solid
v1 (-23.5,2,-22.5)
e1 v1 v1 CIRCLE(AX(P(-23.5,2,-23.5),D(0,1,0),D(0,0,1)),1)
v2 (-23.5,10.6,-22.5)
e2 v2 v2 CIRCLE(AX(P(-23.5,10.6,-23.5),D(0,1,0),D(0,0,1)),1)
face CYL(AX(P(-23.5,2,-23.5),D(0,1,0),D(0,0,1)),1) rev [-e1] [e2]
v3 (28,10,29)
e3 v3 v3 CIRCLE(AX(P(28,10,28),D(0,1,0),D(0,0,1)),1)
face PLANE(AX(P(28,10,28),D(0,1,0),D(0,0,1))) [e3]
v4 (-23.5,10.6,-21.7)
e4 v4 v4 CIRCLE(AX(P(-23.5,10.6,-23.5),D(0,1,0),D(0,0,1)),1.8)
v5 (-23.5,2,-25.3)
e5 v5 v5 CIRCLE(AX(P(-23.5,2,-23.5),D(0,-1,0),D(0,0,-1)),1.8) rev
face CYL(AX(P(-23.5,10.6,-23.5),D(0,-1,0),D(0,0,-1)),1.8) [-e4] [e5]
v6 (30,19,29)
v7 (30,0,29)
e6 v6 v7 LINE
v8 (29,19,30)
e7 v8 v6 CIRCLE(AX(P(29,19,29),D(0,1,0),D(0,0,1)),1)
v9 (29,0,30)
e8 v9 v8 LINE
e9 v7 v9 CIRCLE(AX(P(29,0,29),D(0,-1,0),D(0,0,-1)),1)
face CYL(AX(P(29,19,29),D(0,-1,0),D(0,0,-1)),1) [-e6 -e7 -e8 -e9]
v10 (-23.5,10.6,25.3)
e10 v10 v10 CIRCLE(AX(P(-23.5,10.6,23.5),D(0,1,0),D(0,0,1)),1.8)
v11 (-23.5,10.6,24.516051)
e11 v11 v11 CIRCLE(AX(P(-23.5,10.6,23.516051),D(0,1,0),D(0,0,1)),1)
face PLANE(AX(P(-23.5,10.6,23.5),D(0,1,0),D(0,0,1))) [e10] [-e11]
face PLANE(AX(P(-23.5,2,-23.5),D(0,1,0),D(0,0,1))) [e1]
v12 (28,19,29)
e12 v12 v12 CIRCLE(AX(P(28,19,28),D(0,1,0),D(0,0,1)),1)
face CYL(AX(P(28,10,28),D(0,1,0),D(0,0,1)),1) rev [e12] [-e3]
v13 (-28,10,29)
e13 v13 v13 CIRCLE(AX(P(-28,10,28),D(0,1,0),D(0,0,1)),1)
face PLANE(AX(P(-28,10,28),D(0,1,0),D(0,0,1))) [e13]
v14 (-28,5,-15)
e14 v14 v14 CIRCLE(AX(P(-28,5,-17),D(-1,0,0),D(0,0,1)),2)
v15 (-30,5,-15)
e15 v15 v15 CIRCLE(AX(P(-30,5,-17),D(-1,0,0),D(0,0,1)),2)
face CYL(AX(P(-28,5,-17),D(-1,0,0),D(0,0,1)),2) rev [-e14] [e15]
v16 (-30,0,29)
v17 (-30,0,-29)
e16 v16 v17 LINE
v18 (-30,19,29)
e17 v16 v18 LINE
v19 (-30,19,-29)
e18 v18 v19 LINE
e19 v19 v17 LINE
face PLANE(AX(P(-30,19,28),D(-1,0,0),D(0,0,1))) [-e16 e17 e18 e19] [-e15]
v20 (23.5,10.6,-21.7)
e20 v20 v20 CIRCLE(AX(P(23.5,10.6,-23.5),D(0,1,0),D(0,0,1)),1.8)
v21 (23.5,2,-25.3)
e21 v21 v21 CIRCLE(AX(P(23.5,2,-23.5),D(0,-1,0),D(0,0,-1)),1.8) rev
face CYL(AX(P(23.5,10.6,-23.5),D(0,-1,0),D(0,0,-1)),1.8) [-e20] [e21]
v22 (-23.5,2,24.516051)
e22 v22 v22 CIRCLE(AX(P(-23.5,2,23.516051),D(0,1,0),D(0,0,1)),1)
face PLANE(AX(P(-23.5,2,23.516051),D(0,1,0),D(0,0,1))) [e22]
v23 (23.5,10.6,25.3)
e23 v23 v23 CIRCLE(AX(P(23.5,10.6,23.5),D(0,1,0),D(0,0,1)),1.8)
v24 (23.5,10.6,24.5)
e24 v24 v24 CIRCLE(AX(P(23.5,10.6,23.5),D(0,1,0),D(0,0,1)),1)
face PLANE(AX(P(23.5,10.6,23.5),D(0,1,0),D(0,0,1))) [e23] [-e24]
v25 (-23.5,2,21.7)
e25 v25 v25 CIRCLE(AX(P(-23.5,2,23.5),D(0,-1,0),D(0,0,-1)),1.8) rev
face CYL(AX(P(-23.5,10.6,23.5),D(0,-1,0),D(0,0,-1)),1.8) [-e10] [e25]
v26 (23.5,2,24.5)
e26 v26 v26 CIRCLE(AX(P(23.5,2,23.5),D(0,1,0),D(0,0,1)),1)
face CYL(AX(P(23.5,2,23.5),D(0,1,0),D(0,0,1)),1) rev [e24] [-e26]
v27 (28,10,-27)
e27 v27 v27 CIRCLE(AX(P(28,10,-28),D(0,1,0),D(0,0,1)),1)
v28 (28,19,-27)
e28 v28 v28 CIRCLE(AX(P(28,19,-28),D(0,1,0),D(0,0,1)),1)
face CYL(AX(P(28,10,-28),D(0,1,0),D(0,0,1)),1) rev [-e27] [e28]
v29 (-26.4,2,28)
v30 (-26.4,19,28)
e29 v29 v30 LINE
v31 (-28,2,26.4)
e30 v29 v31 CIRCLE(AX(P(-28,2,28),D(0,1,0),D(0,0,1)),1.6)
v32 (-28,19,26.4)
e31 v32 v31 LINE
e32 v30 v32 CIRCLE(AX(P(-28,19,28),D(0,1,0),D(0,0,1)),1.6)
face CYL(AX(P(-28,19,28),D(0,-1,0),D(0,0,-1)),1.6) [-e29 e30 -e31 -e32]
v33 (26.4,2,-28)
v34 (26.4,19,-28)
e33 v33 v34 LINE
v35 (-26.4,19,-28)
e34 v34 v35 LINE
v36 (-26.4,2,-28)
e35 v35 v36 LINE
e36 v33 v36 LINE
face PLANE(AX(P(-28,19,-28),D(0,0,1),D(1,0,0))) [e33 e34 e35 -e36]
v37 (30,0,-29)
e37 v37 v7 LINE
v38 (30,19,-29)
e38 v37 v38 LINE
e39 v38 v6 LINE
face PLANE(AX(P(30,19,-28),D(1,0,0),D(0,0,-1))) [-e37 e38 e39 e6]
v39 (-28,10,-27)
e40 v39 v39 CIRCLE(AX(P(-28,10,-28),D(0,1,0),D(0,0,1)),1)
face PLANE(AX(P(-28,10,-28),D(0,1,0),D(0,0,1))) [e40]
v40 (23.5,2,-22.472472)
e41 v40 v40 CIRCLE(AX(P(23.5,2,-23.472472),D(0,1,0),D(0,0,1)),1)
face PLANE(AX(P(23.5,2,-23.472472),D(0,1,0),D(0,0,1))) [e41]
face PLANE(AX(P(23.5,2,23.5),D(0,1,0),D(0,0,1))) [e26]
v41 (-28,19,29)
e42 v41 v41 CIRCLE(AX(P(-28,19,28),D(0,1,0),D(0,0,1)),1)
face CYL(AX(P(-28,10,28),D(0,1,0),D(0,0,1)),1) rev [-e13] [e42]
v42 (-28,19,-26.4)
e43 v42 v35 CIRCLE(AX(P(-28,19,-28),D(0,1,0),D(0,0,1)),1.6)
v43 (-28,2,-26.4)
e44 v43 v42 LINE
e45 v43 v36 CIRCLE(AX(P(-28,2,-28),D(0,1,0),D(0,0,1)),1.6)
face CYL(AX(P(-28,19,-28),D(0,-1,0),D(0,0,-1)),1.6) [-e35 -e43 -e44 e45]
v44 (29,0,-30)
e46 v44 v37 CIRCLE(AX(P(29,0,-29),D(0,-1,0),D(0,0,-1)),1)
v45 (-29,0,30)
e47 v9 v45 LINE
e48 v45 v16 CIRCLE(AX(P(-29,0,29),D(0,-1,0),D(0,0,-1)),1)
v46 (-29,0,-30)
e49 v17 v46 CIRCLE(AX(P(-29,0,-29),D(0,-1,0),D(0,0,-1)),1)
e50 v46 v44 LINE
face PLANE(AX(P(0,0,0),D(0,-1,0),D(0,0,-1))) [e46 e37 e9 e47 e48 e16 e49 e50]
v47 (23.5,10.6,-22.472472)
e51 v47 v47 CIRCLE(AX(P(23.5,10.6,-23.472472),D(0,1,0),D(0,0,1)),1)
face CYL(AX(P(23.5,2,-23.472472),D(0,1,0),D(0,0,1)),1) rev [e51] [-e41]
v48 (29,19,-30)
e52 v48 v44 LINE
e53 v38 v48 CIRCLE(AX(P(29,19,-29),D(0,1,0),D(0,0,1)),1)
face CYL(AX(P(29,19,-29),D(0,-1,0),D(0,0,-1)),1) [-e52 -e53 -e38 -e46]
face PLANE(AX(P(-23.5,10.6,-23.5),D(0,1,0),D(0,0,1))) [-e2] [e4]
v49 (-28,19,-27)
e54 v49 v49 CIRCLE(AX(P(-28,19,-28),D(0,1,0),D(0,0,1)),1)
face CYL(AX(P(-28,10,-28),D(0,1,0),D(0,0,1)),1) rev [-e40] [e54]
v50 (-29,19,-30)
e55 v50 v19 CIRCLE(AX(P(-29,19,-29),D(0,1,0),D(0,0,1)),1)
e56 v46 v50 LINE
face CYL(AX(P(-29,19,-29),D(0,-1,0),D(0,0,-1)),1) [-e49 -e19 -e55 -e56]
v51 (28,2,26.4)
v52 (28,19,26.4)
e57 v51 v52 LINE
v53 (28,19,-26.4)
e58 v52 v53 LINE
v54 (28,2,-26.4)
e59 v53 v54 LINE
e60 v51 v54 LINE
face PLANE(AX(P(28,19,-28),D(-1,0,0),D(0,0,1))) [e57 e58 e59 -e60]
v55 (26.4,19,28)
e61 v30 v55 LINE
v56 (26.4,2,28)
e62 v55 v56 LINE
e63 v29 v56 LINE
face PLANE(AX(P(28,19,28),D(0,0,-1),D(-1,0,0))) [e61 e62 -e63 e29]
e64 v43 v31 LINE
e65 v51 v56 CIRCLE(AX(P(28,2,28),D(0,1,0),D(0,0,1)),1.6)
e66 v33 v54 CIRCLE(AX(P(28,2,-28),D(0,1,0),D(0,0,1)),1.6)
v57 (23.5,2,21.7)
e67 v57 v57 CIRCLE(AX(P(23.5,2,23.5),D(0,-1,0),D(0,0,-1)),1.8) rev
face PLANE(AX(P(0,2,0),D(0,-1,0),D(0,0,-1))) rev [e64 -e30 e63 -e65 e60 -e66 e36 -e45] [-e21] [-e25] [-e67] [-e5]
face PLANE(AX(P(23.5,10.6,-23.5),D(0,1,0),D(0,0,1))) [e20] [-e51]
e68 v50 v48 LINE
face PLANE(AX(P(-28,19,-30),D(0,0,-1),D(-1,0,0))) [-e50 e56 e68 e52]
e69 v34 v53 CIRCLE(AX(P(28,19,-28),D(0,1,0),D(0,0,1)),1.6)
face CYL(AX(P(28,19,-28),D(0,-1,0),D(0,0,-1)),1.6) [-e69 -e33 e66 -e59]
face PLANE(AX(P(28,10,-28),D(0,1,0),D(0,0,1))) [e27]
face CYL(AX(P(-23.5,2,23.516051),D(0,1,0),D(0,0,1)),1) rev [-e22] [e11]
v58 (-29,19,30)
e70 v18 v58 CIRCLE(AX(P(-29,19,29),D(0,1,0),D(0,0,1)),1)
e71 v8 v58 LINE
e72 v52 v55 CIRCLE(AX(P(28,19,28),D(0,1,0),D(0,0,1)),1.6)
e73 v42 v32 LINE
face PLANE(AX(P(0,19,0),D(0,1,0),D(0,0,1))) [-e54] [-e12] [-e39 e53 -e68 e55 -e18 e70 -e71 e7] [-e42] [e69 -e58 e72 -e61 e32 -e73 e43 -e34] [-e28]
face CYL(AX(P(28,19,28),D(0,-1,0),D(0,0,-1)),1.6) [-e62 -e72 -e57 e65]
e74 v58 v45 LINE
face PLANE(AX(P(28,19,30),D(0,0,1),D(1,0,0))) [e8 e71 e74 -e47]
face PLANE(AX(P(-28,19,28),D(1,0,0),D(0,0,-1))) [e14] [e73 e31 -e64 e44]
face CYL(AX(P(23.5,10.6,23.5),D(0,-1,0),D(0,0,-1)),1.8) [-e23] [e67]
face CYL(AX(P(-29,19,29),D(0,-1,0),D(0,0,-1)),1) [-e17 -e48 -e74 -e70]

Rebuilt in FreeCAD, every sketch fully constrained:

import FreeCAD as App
import Part
import Sketcher

V = App.Vector
Q = App.Units.Quantity


def edges_at(feature, points):
    """Names of the edges that pass closest to the given points."""
    edges = feature.Shape.Edges
    near = lambda p: min(range(len(edges)), key=lambda i: edges[i].distToShape(Part.Vertex(*p))[0])
    return sorted({f"Edge{near(p) + 1}" for p in points})


def add_polygon(sketch, points):
    """Adds a closed chain of lines whose ends are joined by coincident constraints."""
    first, n = sketch.GeometryCount, len(points)
    for a, b in zip(points, points[1:] + points[:1]):
        sketch.addGeometry(Part.LineSegment(App.Vector(*a, 0), App.Vector(*b, 0)), False)
    for i in range(n):
        sketch.addConstraint(Sketcher.Constraint("Coincident", first + i, 2, first + (i + 1) % n, 1))

doc = App.newDocument("Part")
body = doc.addObject("PartDesign::Body", "Body")

sketch1 = body.newObject("Sketcher::SketchObject", "Sketch")
sketch1.AttachmentSupport = (doc.getObject("XZ_Plane"), [""])
sketch1.MapMode = "FlatFace"
add_polygon(sketch1, [(-28, -28), (-28, 28), (28, 28), (28, -28)])
sketch1.addConstraint([
    Sketcher.Constraint("Vertical", 0),
    Sketcher.Constraint("Horizontal", 1),
    Sketcher.Constraint("Vertical", 2),
    Sketcher.Constraint("Horizontal", 3),
    Sketcher.Constraint("Symmetric", 0, 2, 2, 2, -1, 1),
    Sketcher.Constraint("Equal", 3, 0),
    Sketcher.Constraint("DistanceX", 1, 1, 1, 2, Q("56 mm")),
])
pad1 = body.newObject("PartDesign::Pad", "Pad")
pad1.Profile = sketch1
pad1.Length = 2
pad1.Reversed = True

sketch2 = body.newObject("Sketcher::SketchObject", "Sketch001")
sketch2.AttachmentSupport = (doc.getObject("XZ_Plane"), [""])
sketch2.MapMode = "FlatFace"
sketch2.AttachmentOffset = App.Placement(V(0, 0, -2), App.Rotation())
sketch2.addGeometry([
    Part.Circle(V(-23.5, 23.5, 0), V(0, 0, 1), 1.8),
    Part.Circle(V(-23.5, -23.5, 0), V(0, 0, 1), 1.8),
    Part.Circle(V(23.5, -23.5, 0), V(0, 0, 1), 1.8),
    Part.Circle(V(23.5, 23.5, 0), V(0, 0, 1), 1.8),
], False)
sketch2.addConstraint([
    Sketcher.Constraint("Equal", 0, 1),
    Sketcher.Constraint("Equal", 1, 2),
    Sketcher.Constraint("Equal", 2, 3),
    Sketcher.Constraint("Symmetric", 0, 3, 2, 3, -1, 1),
    Sketcher.Constraint("Symmetric", 1, 3, 3, 3, -1, 1),
    Sketcher.Constraint("Symmetric", 1, 3, 2, 3, -2),
    Sketcher.Constraint("Diameter", 0, Q("3.6 mm")),
    Sketcher.Constraint("DistanceY", 1, 3, 0, 3, Q("47 mm")),
    Sketcher.Constraint("DistanceX", 1, 3, 2, 3, Q("47 mm")),
])
pad2 = body.newObject("PartDesign::Pad", "Pad001")
pad2.Profile = sketch2
pad2.Length = 8.6
pad2.Reversed = True

sketch3 = body.newObject("Sketcher::SketchObject", "Sketch002")
sketch3.AttachmentSupport = (doc.getObject("XZ_Plane"), [""])
sketch3.MapMode = "FlatFace"
sketch3.AttachmentOffset = App.Placement(V(0, 0, -10.6), App.Rotation())
sketch3.addGeometry([
    Part.Circle(V(-23.5, -23.5, 0), V(0, 0, 1), 1),
    Part.Circle(V(23.5, -23.5, 0), V(0, 0, 1), 1),
    Part.Circle(V(23.5, 23.5, 0), V(0, 0, 1), 1),
    Part.Circle(V(-23.5, 23.5, 0), V(0, 0, 1), 1),
], False)
sketch3.addConstraint([
    Sketcher.Constraint("Equal", 0, 1),
    Sketcher.Constraint("Equal", 1, 2),
    Sketcher.Constraint("Equal", 2, 3),
    Sketcher.Constraint("Symmetric", 0, 3, 2, 3, -1, 1),
    Sketcher.Constraint("Vertical", 1, 3, 2, 3),
    Sketcher.Constraint("Vertical", 0, 3, 3, 3),
    Sketcher.Constraint("Diameter", 0, Q("2 mm")),
    Sketcher.Constraint("DistanceX", 0, 3, 1, 3, Q("47 mm")),
    Sketcher.Constraint("DistanceY", 0, 3, 2, 3, Q("47 mm")),
    Sketcher.Constraint("DistanceY", 1, 3, -1, 1, Q("23.472472 mm")),
    Sketcher.Constraint("DistanceY", -1, 1, 3, 3, Q("23.516051 mm")),
])
pocket1 = body.newObject("PartDesign::Pocket", "Pocket")
pocket1.Profile = sketch3
pocket1.Length = 8.6
pocket1.Reversed = True
body2 = doc.addObject("PartDesign::Body", "Body001")

sketch4 = body2.newObject("Sketcher::SketchObject", "Sketch003")
sketch4.AttachmentSupport = (doc.getObject("XZ_Plane001"), [""])
sketch4.MapMode = "FlatFace"
add_polygon(sketch4, [(-28, -28), (-28, -30), (30, -30), (30, -28)])
sketch4.addConstraint([
    Sketcher.Constraint("Vertical", 0),
    Sketcher.Constraint("Horizontal", 1),
    Sketcher.Constraint("Vertical", 2),
    Sketcher.Constraint("Horizontal", 3),
    Sketcher.Constraint("DistanceX", 1, 1, 1, 2, Q("58 mm")),
    Sketcher.Constraint("DistanceY", 0, 2, 0, 1, Q("2 mm")),
    Sketcher.Constraint("DistanceX", 0, 2, -1, 1, Q("28 mm")),
    Sketcher.Constraint("DistanceY", 0, 2, -1, 1, Q("30 mm")),
])
pad3 = body2.newObject("PartDesign::Pad", "Pad002")
pad3.Profile = sketch4
pad3.Length = 19
pad3.Reversed = True
doc.recompute()

boolean = body.newObject("PartDesign::Boolean", "Boolean")
boolean.Type = "Fuse"
boolean.addObjects([body2])

sketch5 = body.newObject("Sketcher::SketchObject", "Sketch004")
sketch5.AttachmentSupport = (doc.getObject("XZ_Plane"), [""])
sketch5.MapMode = "FlatFace"
add_polygon(sketch5, [(28, 30), (28, -28), (30, -28), (30, 30)])
sketch5.addConstraint([
    Sketcher.Constraint("Vertical", 0),
    Sketcher.Constraint("Horizontal", 1),
    Sketcher.Constraint("Vertical", 2),
    Sketcher.Constraint("Horizontal", 3),
    Sketcher.Constraint("DistanceX", 1, 1, 1, 2, Q("2 mm")),
    Sketcher.Constraint("DistanceY", 0, 2, 0, 1, Q("58 mm")),
    Sketcher.Constraint("DistanceX", -1, 1, 0, 2, Q("28 mm")),
    Sketcher.Constraint("DistanceY", 0, 2, -1, 1, Q("28 mm")),
])
pad4 = body.newObject("PartDesign::Pad", "Pad003")
pad4.Profile = sketch5
pad4.Length = 19
pad4.Reversed = True
body3 = doc.addObject("PartDesign::Body", "Body002")

sketch6 = body3.newObject("Sketcher::SketchObject", "Sketch005")
sketch6.AttachmentSupport = (doc.getObject("XZ_Plane002"), [""])
sketch6.MapMode = "FlatFace"
add_polygon(sketch6, [(-30, 30), (-30, 28), (28, 28), (28, 30)])
sketch6.addConstraint([
    Sketcher.Constraint("Vertical", 0),
    Sketcher.Constraint("Horizontal", 1),
    Sketcher.Constraint("Vertical", 2),
    Sketcher.Constraint("Horizontal", 3),
    Sketcher.Constraint("DistanceX", 1, 1, 1, 2, Q("58 mm")),
    Sketcher.Constraint("DistanceY", 0, 2, 0, 1, Q("2 mm")),
    Sketcher.Constraint("DistanceX", 0, 2, -1, 1, Q("30 mm")),
    Sketcher.Constraint("DistanceY", -1, 1, 0, 2, Q("28 mm")),
])
pad5 = body3.newObject("PartDesign::Pad", "Pad004")
pad5.Profile = sketch6
pad5.Length = 19
pad5.Reversed = True
doc.recompute()

boolean2 = body.newObject("PartDesign::Boolean", "Boolean001")
boolean2.Type = "Fuse"
boolean2.addObjects([body3])

sketch7 = body.newObject("Sketcher::SketchObject", "Sketch006")
sketch7.AttachmentSupport = (doc.getObject("XZ_Plane"), [""])
sketch7.MapMode = "FlatFace"
add_polygon(sketch7, [(-30, 28), (-30, -30), (-28, -30), (-28, 28)])
sketch7.addConstraint([
    Sketcher.Constraint("Vertical", 0),
    Sketcher.Constraint("Horizontal", 1),
    Sketcher.Constraint("Vertical", 2),
    Sketcher.Constraint("Horizontal", 3),
    Sketcher.Constraint("DistanceX", 1, 1, 1, 2, Q("2 mm")),
    Sketcher.Constraint("DistanceY", 0, 2, 0, 1, Q("58 mm")),
    Sketcher.Constraint("DistanceX", 0, 2, -1, 1, Q("30 mm")),
    Sketcher.Constraint("DistanceY", 0, 2, -1, 1, Q("30 mm")),
])
pad6 = body.newObject("PartDesign::Pad", "Pad005")
pad6.Profile = sketch7
pad6.Length = 19
pad6.Reversed = True

sketch8 = body.newObject("Sketcher::SketchObject", "Sketch007")
sketch8.AttachmentSupport = (doc.getObject("YZ_Plane"), [""])
sketch8.MapMode = "FlatFace"
sketch8.AttachmentOffset = App.Placement(V(0, 0, -30), App.Rotation())
sketch8.addGeometry(Part.Circle(V(5, -17, 0), V(0, 0, 1), 2), False)
sketch8.addConstraint([
    Sketcher.Constraint("Diameter", 0, Q("4 mm")),
    Sketcher.Constraint("DistanceX", -1, 1, 0, 3, Q("5 mm")),
    Sketcher.Constraint("DistanceY", 0, 3, -1, 1, Q("17 mm")),
])
pocket2 = body.newObject("PartDesign::Pocket", "Pocket001")
pocket2.Profile = sketch8
pocket2.Length = 2
pocket2.Reversed = True

sketch9 = body.newObject("Sketcher::SketchObject", "Sketch008")
sketch9.AttachmentSupport = (doc.getObject("XZ_Plane"), [""])
sketch9.MapMode = "FlatFace"
sketch9.AttachmentOffset = App.Placement(V(0, 0, -2), App.Rotation())
sketch9.addGeometry([
    Part.Circle(V(-28, -28, 0), V(0, 0, 1), 1.6),
    Part.Circle(V(28, -28, 0), V(0, 0, 1), 1.6),
    Part.Circle(V(28, 28, 0), V(0, 0, 1), 1.6),
    Part.Circle(V(-28, 28, 0), V(0, 0, 1), 1.6),
], False)
sketch9.addConstraint([
    Sketcher.Constraint("Equal", 0, 1),
    Sketcher.Constraint("Equal", 1, 2),
    Sketcher.Constraint("Equal", 2, 3),
    Sketcher.Constraint("Symmetric", 0, 3, 2, 3, -1, 1),
    Sketcher.Constraint("Symmetric", 1, 3, 3, 3, -1, 1),
    Sketcher.Constraint("Symmetric", 0, 3, 1, 3, -2),
    Sketcher.Constraint("Diameter", 0, Q("3.2 mm")),
    Sketcher.Constraint("DistanceX", 0, 3, -1, 1, Q("28 mm")),
    Sketcher.Constraint("DistanceY", 0, 3, -1, 1, Q("28 mm")),
])
pad7 = body.newObject("PartDesign::Pad", "Pad006")
pad7.Profile = sketch9
pad7.Length = 17
pad7.Reversed = True

sketch10 = body.newObject("Sketcher::SketchObject", "Sketch009")
sketch10.AttachmentSupport = (doc.getObject("XZ_Plane"), [""])
sketch10.MapMode = "FlatFace"
sketch10.AttachmentOffset = App.Placement(V(0, 0, -19), App.Rotation())
sketch10.addGeometry([
    Part.Circle(V(-28, -28, 0), V(0, 0, 1), 1),
    Part.Circle(V(28, -28, 0), V(0, 0, 1), 1),
    Part.Circle(V(-28, 28, 0), V(0, 0, 1), 1),
    Part.Circle(V(28, 28, 0), V(0, 0, 1), 1),
], False)
sketch10.addConstraint([
    Sketcher.Constraint("Equal", 0, 1),
    Sketcher.Constraint("Equal", 1, 2),
    Sketcher.Constraint("Equal", 2, 3),
    Sketcher.Constraint("Symmetric", 1, 3, 2, 3, -1, 1),
    Sketcher.Constraint("Symmetric", 0, 3, 3, 3, -1, 1),
    Sketcher.Constraint("Symmetric", 0, 3, 1, 3, -2),
    Sketcher.Constraint("Diameter", 0, Q("2 mm")),
    Sketcher.Constraint("DistanceX", 0, 3, -1, 1, Q("28 mm")),
    Sketcher.Constraint("DistanceY", 0, 3, -1, 1, Q("28 mm")),
])
pocket3 = body.newObject("PartDesign::Pocket", "Pocket002")
pocket3.Profile = sketch10
pocket3.Length = 9
pocket3.Reversed = True
doc.recompute()

fillet = body.newObject("PartDesign::Fillet", "Fillet")
fillet.Base = (pocket3, edges_at(pocket3, [
    (-30, 9.5, 30),
    (30, 9.5, 30),
    (30, 9.5, -30),
    (-30, 9.5, -30),
]))
fillet.Radius = 1

doc.recompute()
